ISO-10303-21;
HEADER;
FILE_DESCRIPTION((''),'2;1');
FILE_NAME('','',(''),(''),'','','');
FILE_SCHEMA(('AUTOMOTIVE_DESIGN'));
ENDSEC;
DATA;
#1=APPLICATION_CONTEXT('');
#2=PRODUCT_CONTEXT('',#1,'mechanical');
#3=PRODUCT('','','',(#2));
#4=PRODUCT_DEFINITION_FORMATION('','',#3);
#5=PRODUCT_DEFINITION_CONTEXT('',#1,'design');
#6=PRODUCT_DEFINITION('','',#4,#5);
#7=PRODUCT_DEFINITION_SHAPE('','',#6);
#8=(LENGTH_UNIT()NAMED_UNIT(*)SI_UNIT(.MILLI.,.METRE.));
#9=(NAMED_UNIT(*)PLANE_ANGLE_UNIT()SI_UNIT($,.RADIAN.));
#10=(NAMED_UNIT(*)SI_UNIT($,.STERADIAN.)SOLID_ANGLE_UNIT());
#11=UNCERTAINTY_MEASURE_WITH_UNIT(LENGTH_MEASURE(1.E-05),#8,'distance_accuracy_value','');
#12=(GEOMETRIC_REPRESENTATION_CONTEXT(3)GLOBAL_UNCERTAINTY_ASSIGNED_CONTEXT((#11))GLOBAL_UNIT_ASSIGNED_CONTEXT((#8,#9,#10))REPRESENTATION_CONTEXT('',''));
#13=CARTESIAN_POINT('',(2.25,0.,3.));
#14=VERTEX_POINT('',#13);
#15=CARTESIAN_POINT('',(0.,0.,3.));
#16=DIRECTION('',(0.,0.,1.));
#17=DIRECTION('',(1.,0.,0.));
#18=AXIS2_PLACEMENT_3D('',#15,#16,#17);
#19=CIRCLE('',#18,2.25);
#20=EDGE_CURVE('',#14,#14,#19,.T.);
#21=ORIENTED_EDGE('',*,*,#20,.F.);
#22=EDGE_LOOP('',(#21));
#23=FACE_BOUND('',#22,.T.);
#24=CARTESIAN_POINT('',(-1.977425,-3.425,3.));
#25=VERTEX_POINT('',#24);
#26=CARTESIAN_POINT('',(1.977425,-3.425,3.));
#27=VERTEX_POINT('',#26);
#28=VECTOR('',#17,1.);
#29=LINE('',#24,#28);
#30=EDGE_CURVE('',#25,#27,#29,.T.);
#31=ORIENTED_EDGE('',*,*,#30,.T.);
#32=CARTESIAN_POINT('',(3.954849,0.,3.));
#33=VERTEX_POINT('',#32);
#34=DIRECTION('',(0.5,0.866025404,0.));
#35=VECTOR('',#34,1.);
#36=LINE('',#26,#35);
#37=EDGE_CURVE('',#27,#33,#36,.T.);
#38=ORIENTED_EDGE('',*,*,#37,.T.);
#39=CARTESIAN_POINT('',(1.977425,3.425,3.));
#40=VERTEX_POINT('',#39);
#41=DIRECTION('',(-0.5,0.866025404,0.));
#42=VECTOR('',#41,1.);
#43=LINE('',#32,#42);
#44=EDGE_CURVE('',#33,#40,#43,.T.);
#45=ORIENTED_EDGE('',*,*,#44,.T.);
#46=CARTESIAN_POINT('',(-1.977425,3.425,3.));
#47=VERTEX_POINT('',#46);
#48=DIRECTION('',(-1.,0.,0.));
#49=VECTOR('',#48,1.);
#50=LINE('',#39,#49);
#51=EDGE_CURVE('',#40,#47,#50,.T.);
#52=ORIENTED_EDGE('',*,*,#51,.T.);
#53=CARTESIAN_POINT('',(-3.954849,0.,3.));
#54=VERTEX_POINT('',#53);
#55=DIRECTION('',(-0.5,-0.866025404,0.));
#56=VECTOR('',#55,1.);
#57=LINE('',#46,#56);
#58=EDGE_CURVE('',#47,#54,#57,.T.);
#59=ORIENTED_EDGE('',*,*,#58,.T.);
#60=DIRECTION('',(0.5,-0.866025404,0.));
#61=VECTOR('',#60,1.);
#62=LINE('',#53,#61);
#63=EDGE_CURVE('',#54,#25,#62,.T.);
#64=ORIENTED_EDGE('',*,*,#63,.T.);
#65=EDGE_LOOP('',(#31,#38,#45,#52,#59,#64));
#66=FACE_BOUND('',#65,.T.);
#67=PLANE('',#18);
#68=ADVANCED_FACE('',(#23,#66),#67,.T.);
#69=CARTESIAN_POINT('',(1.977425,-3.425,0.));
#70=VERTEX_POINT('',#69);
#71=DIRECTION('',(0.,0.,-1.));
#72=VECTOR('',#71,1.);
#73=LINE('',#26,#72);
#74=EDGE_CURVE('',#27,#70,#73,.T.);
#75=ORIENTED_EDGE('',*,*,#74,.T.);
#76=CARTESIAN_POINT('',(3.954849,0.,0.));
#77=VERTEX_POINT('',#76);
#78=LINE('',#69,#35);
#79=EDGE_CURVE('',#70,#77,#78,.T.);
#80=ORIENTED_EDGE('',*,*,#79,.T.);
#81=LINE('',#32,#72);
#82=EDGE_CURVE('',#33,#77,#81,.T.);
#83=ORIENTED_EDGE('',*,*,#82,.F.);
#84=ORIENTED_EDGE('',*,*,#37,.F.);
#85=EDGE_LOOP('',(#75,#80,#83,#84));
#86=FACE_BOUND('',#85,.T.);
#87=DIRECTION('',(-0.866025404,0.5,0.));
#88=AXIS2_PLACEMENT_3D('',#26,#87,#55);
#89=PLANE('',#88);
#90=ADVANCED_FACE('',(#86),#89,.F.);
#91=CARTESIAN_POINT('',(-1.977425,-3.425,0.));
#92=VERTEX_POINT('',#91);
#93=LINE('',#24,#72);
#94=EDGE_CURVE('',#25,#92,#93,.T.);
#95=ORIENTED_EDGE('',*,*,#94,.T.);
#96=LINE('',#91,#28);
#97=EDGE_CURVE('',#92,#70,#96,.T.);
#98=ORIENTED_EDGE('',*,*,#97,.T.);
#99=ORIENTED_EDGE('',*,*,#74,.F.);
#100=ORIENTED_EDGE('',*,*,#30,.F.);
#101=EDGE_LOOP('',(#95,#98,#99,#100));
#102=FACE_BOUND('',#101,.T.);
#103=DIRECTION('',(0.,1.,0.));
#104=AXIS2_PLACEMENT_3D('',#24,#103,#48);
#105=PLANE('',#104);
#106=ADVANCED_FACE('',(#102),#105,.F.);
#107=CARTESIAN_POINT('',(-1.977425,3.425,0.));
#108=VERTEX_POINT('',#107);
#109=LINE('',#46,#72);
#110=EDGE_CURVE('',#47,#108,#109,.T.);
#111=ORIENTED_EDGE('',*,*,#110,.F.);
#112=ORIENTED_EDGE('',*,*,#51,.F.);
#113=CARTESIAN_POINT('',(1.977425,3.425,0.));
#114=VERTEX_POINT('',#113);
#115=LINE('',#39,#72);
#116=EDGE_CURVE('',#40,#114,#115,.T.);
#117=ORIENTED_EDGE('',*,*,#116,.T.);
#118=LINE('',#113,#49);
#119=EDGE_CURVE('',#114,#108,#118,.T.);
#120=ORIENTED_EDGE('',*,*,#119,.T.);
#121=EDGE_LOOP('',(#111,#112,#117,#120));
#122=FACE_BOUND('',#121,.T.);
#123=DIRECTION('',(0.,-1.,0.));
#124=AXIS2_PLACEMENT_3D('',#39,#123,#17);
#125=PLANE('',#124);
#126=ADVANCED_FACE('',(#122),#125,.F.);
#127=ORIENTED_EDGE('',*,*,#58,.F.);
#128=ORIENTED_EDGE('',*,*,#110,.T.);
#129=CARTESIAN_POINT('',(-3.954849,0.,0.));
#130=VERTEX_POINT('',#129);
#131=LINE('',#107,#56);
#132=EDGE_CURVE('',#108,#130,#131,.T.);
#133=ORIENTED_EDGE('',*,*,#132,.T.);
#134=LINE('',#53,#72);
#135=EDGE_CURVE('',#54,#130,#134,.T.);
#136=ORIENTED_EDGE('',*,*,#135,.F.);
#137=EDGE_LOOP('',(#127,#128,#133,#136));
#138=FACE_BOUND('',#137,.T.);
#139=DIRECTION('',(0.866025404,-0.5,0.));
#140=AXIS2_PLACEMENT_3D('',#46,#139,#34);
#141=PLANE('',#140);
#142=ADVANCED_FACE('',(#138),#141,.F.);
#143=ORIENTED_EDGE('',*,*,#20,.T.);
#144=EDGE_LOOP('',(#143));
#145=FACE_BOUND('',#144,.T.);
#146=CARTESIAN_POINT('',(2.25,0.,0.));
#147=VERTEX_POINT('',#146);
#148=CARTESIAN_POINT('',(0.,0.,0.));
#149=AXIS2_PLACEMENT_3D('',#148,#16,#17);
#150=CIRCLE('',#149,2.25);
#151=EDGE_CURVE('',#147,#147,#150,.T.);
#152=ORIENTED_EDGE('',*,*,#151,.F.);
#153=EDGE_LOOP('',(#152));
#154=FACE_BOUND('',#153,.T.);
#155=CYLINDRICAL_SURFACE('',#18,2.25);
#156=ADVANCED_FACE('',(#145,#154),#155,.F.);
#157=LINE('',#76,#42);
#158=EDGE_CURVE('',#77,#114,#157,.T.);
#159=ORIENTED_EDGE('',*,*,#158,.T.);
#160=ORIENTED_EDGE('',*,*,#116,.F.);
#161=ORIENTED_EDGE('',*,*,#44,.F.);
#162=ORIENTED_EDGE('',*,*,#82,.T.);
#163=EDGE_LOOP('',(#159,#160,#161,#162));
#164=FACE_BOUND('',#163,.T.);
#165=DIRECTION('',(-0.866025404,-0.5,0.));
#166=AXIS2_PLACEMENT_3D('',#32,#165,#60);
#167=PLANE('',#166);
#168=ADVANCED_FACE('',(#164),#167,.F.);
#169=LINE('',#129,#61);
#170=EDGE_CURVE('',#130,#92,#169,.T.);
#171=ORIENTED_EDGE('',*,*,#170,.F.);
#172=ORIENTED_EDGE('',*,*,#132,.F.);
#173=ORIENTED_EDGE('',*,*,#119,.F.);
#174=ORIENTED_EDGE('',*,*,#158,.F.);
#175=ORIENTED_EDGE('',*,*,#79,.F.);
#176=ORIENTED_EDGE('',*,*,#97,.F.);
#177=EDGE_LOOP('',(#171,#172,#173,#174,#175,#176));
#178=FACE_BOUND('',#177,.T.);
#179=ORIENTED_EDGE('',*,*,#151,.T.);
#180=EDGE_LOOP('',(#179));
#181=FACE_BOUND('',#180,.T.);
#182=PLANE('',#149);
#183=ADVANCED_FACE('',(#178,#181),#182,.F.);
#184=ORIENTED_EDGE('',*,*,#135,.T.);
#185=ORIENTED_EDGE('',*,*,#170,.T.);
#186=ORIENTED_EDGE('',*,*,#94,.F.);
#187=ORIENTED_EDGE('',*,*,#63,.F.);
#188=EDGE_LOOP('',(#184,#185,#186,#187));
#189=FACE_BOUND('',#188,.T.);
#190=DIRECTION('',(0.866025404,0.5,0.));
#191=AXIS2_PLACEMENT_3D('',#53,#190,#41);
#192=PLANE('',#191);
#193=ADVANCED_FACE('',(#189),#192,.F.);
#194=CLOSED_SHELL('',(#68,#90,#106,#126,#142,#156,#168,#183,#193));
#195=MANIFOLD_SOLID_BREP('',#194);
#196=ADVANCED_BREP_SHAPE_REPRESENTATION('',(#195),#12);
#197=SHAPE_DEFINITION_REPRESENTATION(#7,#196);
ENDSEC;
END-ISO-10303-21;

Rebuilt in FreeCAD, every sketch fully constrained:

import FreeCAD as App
import Part
import Sketcher

V = App.Vector
Q = App.Units.Quantity

doc = App.newDocument("Part")
params = doc.addObject("Spreadsheet::Sheet", "Params")
for row, (alias, value) in enumerate([
    ("pad1_length", "3 mm"),
    ("sketch2_diameter", "4.5 mm"),
    ("hole_diameter", "4.5 mm"),
    ("hole_depth", "20 mm"),
], start=1):
    params.set(f"A{row}", alias)
    params.set(f"B{row}", "=" + value)
    params.setAlias(f"B{row}", alias)

body = doc.addObject("PartDesign::Body", "Body")

# Sketch on XY plane
sketch1 = body.newObject("Sketcher::SketchObject", "Sketch")
sketch1.AttachmentSupport = (doc.getObject("XY_Plane"), [""])
sketch1.MapMode = "FlatFace"
sketch1.addGeometry(Part.LineSegment(V(3.954849, 0, 0), V(1.977425, 3.425, 0)), False)
sketch1.addGeometry(Part.LineSegment(V(1.977425, 3.425, 0), V(-1.977425, 3.425, 0)), False)
sketch1.addGeometry(Part.LineSegment(V(-1.977425, 3.425, 0), V(-3.954849, 0, 0)), False)
sketch1.addGeometry(Part.LineSegment(V(-3.954849, 0, 0), V(-1.977425, -3.425, 0)), False)
sketch1.addGeometry(Part.LineSegment(V(-1.977425, -3.425, 0), V(1.977425, -3.425, 0)), False)
sketch1.addGeometry(Part.LineSegment(V(1.977425, -3.425, 0), V(3.954849, 0, 0)), False)
sketch1.addConstraint(Sketcher.Constraint("Coincident", 0, 2, 1, 1))
sketch1.addConstraint(Sketcher.Constraint("Coincident", 1, 2, 2, 1))
sketch1.addConstraint(Sketcher.Constraint("Coincident", 2, 2, 3, 1))
sketch1.addConstraint(Sketcher.Constraint("Coincident", 3, 2, 4, 1))
sketch1.addConstraint(Sketcher.Constraint("Coincident", 4, 2, 5, 1))
sketch1.addConstraint(Sketcher.Constraint("Coincident", 5, 2, 0, 1))
sketch1.addConstraint(Sketcher.Constraint("Horizontal", 1))
sketch1.addConstraint(Sketcher.Constraint("Horizontal", 4))
sketch1.addConstraint(Sketcher.Constraint("Symmetric", 0, 2, 3, 2, -1, 1))
sketch1.addConstraint(Sketcher.Constraint("Symmetric", 2, 2, 5, 2, -1, 1))
sketch1.addConstraint(Sketcher.Constraint("PointOnObject", 2, 2, -1))
sketch1.addConstraint(Sketcher.Constraint("Parallel", 2, 5))
sketch1.addConstraint(Sketcher.Constraint("Vertical", 1, 2, 3, 2))
sketch1.addConstraint(Sketcher.Constraint("Angle", 0, Q("120 deg")))
sketch1.addConstraint(Sketcher.Constraint("DistanceY", 3, 2, 1, 2, Q("6.85 mm")))
sketch1.addConstraint(Sketcher.Constraint("DistanceX", 1, 2, 1, 1, Q("3.954849 mm")))
pad1 = body.newObject("PartDesign::Pad", "Pad")
pad1.Profile = sketch1
pad1.setExpression("Length", "Params.pad1_length")

# Sketch on XY plane
sketch2 = body.newObject("Sketcher::SketchObject", "Sketch001")
sketch2.AttachmentSupport = (doc.getObject("XY_Plane"), [""])
sketch2.MapMode = "FlatFace"
sketch2.AttachmentOffset = App.Placement(V(0, 0, 3), App.Rotation())
sketch2.addGeometry(Part.Circle(V(0, 0, 0), V(0, 0, 1), 2.25), False)
sketch2.addConstraint(Sketcher.Constraint("Coincident", 0, 3, -1, 1))
sketch2.addConstraint(Sketcher.Constraint("Diameter", 0, Q("4.5 mm")))
sketch2.setExpression("Constraints[1]", "Params.sketch2_diameter")
doc.recompute()
hole = body.newObject("PartDesign::Hole", "Hole")
hole.Profile = sketch2
hole.ThreadType = "None"
hole.setExpression("Diameter", "Params.hole_diameter")
hole.DepthType = "Dimension"
hole.setExpression("Depth", "Params.hole_depth")
hole.DrillPoint = "Angled"
hole.DrillPointAngle = 118

doc.recompute()
